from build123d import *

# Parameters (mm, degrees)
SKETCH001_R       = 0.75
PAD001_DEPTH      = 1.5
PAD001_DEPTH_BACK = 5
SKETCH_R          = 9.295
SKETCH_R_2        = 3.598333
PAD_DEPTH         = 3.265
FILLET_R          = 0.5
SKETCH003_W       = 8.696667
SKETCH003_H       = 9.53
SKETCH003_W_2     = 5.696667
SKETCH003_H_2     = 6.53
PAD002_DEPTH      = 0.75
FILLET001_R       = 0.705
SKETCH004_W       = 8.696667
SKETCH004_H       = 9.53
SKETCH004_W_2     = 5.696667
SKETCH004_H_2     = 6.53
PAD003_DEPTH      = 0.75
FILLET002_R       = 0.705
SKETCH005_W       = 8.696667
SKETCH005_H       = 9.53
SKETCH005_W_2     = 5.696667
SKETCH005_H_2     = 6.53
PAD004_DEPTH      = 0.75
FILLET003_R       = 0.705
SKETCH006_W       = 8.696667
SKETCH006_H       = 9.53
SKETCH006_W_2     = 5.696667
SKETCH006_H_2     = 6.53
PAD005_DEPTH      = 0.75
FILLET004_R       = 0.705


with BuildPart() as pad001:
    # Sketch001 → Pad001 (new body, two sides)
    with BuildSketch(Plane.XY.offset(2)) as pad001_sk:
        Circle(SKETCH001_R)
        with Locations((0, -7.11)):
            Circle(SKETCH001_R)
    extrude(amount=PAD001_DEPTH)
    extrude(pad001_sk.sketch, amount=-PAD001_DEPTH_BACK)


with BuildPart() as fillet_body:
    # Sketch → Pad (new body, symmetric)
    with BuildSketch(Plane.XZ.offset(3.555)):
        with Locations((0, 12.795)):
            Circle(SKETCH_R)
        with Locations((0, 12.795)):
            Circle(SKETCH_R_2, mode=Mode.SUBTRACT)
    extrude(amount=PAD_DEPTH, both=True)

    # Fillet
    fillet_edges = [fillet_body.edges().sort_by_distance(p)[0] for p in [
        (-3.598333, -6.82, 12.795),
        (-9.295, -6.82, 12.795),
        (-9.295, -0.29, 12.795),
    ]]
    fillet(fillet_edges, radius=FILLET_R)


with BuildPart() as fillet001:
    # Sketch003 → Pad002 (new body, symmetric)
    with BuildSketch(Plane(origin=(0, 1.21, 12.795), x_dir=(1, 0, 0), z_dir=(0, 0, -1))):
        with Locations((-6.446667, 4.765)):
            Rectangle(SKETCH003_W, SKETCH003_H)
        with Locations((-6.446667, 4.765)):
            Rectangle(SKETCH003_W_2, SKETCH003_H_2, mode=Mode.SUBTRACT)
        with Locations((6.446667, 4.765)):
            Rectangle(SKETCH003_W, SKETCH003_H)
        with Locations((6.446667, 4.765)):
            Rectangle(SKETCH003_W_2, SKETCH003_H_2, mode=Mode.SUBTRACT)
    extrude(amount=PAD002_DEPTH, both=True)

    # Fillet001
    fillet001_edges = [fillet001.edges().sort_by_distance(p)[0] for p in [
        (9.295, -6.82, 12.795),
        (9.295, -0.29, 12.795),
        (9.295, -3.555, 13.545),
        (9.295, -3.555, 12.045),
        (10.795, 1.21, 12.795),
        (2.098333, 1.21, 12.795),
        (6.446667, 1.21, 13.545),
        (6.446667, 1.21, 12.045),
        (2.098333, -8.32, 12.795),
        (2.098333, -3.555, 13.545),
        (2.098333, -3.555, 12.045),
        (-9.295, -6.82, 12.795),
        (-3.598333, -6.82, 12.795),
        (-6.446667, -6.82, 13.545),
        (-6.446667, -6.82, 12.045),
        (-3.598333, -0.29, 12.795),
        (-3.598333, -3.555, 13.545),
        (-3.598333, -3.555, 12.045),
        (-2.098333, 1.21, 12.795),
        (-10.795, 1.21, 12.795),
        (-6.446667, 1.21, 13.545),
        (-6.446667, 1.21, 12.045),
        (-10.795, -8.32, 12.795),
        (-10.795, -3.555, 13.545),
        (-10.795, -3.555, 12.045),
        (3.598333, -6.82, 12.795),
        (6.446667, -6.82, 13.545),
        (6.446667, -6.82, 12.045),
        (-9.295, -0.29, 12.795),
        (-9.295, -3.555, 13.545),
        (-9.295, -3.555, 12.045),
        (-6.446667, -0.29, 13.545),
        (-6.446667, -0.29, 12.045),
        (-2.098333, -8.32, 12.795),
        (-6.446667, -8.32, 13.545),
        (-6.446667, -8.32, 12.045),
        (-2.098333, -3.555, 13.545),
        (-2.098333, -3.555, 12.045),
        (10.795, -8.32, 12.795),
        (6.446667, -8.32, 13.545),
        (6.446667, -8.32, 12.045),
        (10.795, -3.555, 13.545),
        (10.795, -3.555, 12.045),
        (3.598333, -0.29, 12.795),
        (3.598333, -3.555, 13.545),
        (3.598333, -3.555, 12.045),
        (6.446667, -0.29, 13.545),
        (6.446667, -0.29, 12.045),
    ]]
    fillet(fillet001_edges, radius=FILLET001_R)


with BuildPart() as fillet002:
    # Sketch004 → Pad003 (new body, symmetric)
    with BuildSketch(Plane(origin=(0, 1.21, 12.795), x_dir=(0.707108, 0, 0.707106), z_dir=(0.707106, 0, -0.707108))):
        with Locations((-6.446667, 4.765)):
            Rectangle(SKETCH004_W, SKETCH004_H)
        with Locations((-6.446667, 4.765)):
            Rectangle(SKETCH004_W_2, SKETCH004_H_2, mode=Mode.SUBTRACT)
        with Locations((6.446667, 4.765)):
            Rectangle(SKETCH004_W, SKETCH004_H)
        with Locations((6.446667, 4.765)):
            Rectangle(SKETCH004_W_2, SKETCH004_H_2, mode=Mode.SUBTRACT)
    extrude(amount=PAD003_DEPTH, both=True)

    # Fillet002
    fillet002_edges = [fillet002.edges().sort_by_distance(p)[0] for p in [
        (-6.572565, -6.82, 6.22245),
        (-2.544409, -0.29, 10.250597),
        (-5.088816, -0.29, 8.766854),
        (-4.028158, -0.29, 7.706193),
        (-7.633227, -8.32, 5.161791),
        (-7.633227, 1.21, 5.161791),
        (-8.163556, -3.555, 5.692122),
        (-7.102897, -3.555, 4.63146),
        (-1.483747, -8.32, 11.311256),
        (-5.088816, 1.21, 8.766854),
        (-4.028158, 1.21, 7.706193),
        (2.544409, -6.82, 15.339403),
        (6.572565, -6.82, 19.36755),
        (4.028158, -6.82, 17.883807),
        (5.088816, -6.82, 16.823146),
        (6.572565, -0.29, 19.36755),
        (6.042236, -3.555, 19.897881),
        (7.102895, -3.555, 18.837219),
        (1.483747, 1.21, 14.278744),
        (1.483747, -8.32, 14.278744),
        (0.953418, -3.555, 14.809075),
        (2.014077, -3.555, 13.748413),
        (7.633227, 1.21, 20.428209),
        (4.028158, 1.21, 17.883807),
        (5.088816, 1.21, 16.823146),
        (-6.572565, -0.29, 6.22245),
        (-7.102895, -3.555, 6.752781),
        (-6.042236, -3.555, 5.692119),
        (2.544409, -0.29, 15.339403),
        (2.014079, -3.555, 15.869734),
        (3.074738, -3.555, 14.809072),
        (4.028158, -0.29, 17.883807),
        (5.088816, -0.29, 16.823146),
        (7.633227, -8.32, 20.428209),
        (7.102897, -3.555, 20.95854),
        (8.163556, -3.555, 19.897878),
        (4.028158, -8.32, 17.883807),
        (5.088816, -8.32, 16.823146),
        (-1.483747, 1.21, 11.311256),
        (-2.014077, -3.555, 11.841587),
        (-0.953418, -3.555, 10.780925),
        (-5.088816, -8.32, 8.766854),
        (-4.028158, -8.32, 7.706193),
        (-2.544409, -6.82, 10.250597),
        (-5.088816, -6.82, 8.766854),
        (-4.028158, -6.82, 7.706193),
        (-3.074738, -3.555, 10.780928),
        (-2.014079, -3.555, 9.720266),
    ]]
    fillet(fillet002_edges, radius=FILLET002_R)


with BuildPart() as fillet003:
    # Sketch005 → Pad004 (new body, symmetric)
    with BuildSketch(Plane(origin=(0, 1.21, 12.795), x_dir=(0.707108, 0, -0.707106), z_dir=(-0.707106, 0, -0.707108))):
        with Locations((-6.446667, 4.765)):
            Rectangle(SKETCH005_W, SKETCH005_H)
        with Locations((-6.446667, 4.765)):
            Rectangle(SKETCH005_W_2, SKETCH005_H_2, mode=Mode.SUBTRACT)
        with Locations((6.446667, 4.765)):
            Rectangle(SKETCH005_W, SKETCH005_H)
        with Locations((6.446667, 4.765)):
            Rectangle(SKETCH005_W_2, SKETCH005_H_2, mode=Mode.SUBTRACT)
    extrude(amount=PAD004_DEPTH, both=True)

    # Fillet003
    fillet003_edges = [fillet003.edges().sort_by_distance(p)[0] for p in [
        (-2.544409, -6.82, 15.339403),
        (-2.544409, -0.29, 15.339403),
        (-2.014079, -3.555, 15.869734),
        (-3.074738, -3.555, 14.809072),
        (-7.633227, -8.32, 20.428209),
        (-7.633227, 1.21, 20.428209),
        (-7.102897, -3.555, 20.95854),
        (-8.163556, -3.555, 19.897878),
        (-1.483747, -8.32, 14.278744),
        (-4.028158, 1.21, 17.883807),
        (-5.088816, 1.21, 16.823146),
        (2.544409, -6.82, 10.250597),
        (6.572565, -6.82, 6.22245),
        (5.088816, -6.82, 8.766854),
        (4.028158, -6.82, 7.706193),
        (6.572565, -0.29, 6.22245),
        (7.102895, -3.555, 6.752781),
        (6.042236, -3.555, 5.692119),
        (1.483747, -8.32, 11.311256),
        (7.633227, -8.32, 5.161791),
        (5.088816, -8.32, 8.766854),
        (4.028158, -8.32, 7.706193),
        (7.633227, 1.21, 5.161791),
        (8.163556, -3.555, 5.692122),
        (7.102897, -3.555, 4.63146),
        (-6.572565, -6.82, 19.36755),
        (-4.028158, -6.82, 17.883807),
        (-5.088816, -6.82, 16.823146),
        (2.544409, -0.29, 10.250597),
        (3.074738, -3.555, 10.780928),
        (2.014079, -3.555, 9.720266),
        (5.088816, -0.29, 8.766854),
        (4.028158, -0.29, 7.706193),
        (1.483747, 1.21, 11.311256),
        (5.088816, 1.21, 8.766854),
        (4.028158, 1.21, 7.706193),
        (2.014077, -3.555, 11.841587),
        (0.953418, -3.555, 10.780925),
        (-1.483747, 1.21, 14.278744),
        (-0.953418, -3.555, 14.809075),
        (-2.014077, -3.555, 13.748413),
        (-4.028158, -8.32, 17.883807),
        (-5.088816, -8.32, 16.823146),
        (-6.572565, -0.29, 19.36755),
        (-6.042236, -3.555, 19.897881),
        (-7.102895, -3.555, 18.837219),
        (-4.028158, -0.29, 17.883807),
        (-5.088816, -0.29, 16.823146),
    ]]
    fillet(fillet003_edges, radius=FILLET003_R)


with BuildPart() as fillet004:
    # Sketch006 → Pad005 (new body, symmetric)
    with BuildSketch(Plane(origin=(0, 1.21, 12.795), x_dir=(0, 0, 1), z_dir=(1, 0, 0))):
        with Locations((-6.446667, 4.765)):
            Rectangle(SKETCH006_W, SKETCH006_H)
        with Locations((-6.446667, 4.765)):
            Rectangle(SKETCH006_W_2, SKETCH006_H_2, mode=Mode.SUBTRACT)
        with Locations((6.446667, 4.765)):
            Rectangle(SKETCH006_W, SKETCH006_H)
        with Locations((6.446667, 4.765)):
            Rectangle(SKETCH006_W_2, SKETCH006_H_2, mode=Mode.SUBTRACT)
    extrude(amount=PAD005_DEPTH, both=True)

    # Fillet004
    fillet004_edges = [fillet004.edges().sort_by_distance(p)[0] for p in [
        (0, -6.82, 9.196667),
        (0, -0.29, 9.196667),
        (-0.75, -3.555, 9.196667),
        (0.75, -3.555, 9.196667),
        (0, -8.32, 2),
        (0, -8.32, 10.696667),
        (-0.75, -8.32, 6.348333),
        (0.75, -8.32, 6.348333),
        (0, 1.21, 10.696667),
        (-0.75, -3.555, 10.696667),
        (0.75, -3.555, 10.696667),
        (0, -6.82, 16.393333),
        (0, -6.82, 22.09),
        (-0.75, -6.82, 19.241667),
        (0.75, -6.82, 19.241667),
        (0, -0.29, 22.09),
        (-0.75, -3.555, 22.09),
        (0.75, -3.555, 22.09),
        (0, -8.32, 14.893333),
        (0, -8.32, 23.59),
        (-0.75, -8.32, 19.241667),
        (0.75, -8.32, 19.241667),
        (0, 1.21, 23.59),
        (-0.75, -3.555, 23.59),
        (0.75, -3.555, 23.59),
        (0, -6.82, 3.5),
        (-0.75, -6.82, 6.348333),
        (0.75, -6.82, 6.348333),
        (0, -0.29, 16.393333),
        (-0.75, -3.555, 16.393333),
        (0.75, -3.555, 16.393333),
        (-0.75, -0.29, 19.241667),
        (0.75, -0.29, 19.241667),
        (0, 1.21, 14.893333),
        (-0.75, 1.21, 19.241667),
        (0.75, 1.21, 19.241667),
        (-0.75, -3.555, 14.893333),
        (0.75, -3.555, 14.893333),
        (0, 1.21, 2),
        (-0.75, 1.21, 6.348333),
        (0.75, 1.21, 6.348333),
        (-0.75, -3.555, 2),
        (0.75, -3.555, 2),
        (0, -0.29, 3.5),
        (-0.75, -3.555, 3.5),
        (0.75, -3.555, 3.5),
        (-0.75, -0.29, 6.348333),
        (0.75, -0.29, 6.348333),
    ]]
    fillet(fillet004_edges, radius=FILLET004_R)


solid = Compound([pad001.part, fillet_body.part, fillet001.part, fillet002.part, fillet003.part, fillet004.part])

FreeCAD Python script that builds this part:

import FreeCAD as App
import Part
import Sketcher
Q = App.Units.Quantity


def edges_at(feature, points):
    """Names of the edges that pass closest to the given points."""
    edges = feature.Shape.Edges
    near = lambda p: min(range(len(edges)), key=lambda i: edges[i].distToShape(Part.Vertex(*p))[0])
    return sorted({f"Edge{near(p) + 1}" for p in points})


def add_polygon(sketch, points):
    """Adds a closed chain of lines whose ends are joined by coincident constraints."""
    first, n = sketch.GeometryCount, len(points)
    for a, b in zip(points, points[1:] + points[:1]):
        sketch.addGeometry(Part.LineSegment(App.Vector(*a, 0), App.Vector(*b, 0)), False)
    for i in range(n):
        sketch.addConstraint(Sketcher.Constraint("Coincident", first + i, 2, first + (i + 1) % n, 1))

doc = App.newDocument("Part")
body = doc.addObject("PartDesign::Body", "Body")
body.AllowCompound = True

sketch1 = body.newObject("Sketcher::SketchObject", "Sketch")
sketch1.AttachmentSupport = (doc.getObject("XY_Plane"), [""])
sketch1.MapMode = "FlatFace"
sketch1.AttachmentOffset = App.Placement(App.Vector(0, 0, 2), App.Rotation())
sketch1.addGeometry(Part.Circle(App.Vector(0, 0, 0), App.Vector(0, 0, 1), 0.8), False)
sketch1.addGeometry(Part.Circle(App.Vector(0, -7.1, 0), App.Vector(0, 0, 1), 0.8), False)
sketch1.addConstraint(Sketcher.Constraint("Coincident", 0, 3, -1, 1))
sketch1.addConstraint(Sketcher.Constraint("Equal", 0, 1))
sketch1.addConstraint(Sketcher.Constraint("PointOnObject", 1, 3, -2))
sketch1.addConstraint(Sketcher.Constraint("Diameter", 0, Q("1.5 mm")))
sketch1.addConstraint(Sketcher.Constraint("DistanceY", 1, 3, -1, 1, Q("7.11 mm")))
pad1 = body.newObject("PartDesign::Pad", "Pad")
pad1.Profile = sketch1
pad1.Type = "TwoLengths"
pad1.Length = 1.5
pad1.Length2 = 5
body2 = doc.addObject("PartDesign::Body", "Body001")

sketch2 = body2.newObject("Sketcher::SketchObject", "Sketch001")
sketch2.AttachmentSupport = (doc.getObject("XZ_Plane001"), [""])
sketch2.MapMode = "FlatFace"
sketch2.AttachmentOffset = App.Placement(App.Vector(0, 0, 3.555), App.Rotation())
sketch2.addGeometry(Part.Circle(App.Vector(0, 12.8, 0), App.Vector(0, 0, 1), 9.3), False)
sketch2.addGeometry(Part.Circle(App.Vector(0, 12.8, 0), App.Vector(0, 0, 1), 3.6), False)
sketch2.addConstraint(Sketcher.Constraint("Coincident", 1, 3, 0, 3))
sketch2.addConstraint(Sketcher.Constraint("PointOnObject", 0, 3, -2))
sketch2.addConstraint(Sketcher.Constraint("Diameter", 0, Q("18.59 mm")))
sketch2.addConstraint(Sketcher.Constraint("Diameter", 1, Q("7.196666 mm")))
sketch2.addConstraint(Sketcher.Constraint("DistanceY", -1, 1, 0, 3, Q("12.795 mm")))
pad2 = body2.newObject("PartDesign::Pad", "Pad001")
pad2.Profile = sketch2
pad2.Length = 6.53
pad2.Midplane = True
doc.recompute()

fillet = body2.newObject("PartDesign::Fillet", "Fillet")
fillet.Base = (pad2, edges_at(pad2, [(-3.598, -6.82, 12.795), (-9.295, -6.82, 12.795), (-9.295, -0.29, 12.795)]))
fillet.Radius = 0.5
body3 = doc.addObject("PartDesign::Body", "Body002")
body3.AllowCompound = True

sketch3 = body3.newObject("Sketcher::SketchObject", "Sketch002")
sketch3.AttachmentSupport = (doc.getObject("XY_Plane002"), [""])
sketch3.MapMode = "FlatFace"
sketch3.AttachmentOffset = App.Placement(App.Vector(0, 0, 12.795), App.Rotation())
add_polygon(sketch3, [(-11, -8), (-11, 1), (-2, 1), (-2, -8)])
add_polygon(sketch3, [(-4, 0), (-9, 0), (-9, -7), (-4, -7)])
add_polygon(sketch3, [(2, -8), (2, 1), (11, 1), (11, -8)])
add_polygon(sketch3, [(9, 0), (4, 0), (4, -7), (9, -7)])
sketch3.addConstraint(Sketcher.Constraint("Vertical", 0))
sketch3.addConstraint(Sketcher.Constraint("Horizontal", 1))
sketch3.addConstraint(Sketcher.Constraint("Vertical", 2))
sketch3.addConstraint(Sketcher.Constraint("Horizontal", 3))
sketch3.addConstraint(Sketcher.Constraint("Horizontal", 4))
sketch3.addConstraint(Sketcher.Constraint("Vertical", 5))
sketch3.addConstraint(Sketcher.Constraint("Horizontal", 6))
sketch3.addConstraint(Sketcher.Constraint("Vertical", 7))
sketch3.addConstraint(Sketcher.Constraint("Vertical", 8))
sketch3.addConstraint(Sketcher.Constraint("Horizontal", 9))
sketch3.addConstraint(Sketcher.Constraint("Vertical", 10))
sketch3.addConstraint(Sketcher.Constraint("Horizontal", 11))
sketch3.addConstraint(Sketcher.Constraint("Horizontal", 12))
sketch3.addConstraint(Sketcher.Constraint("Vertical", 13))
sketch3.addConstraint(Sketcher.Constraint("Horizontal", 14))
sketch3.addConstraint(Sketcher.Constraint("Vertical", 15))
sketch3.addConstraint(Sketcher.Constraint("Symmetric", 1, 2, 8, 2, -2))
sketch3.addConstraint(Sketcher.Constraint("Symmetric", 3, 2, 10, 2, -2))
sketch3.addConstraint(Sketcher.Constraint("Symmetric", 7, 2, 12, 2, -2))
sketch3.addConstraint(Sketcher.Constraint("Symmetric", 5, 2, 14, 2, -2))
sketch3.addConstraint(Sketcher.Constraint("DistanceY", 0, 1, 0, 2, Q("9.53 mm")))
sketch3.addConstraint(Sketcher.Constraint("DistanceY", 5, 2, 5, 1, Q("6.53 mm")))
sketch3.addConstraint(Sketcher.Constraint("DistanceX", 0, 2, 4, 2, Q("1.5 mm")))
sketch3.addConstraint(Sketcher.Constraint("DistanceY", 4, 2, 0, 2, Q("1.5 mm")))
sketch3.addConstraint(Sketcher.Constraint("DistanceX", 6, 2, 2, 2, Q("1.5 mm")))
sketch3.addConstraint(Sketcher.Constraint("DistanceY", -1, 1, 0, 2, Q("1.21 mm")))
sketch3.addConstraint(Sketcher.Constraint("DistanceX", 0, 2, -1, 1, Q("10.795001 mm")))
sketch3.addConstraint(Sketcher.Constraint("DistanceX", 1, 1, 1, 2, Q("8.696667 mm")))
pad3 = body3.newObject("PartDesign::Pad", "Pad002")
pad3.Profile = sketch3
pad3.Length = 1.5
pad3.Midplane = True
doc.recompute()

fillet2 = body3.newObject("PartDesign::Fillet", "Fillet001")
fillet2.Base = (pad3, ["Edge1"])
fillet2.UseAllEdges = True
fillet2.Radius = 0.705
body4 = doc.addObject("PartDesign::Body", "Body003")
body4.AllowCompound = True

sketch4 = body4.newObject("Sketcher::SketchObject", "Sketch003")
sketch4.Placement = App.Placement(App.Vector(0, 1.21, 12.795), App.Rotation(App.Vector(0.707107781, 0, 0.707105781), App.Vector(0, -0.999999999, 0), App.Vector(0.707105781, 0, -0.707107781), "ZXY"))
add_polygon(sketch4, [(-11, 10), (-11, 0), (-2, 0), (-2, 10)])
add_polygon(sketch4, [(-4, 1), (-9, 1), (-9, 8), (-4, 8)])
add_polygon(sketch4, [(2, 10), (2, 0), (11, 0), (11, 10)])
add_polygon(sketch4, [(9, 1), (4, 1), (4, 8), (9, 8)])
sketch4.addConstraint(Sketcher.Constraint("Vertical", 0))
sketch4.addConstraint(Sketcher.Constraint("Horizontal", 1))
sketch4.addConstraint(Sketcher.Constraint("Vertical", 2))
sketch4.addConstraint(Sketcher.Constraint("Horizontal", 3))
sketch4.addConstraint(Sketcher.Constraint("Horizontal", 4))
sketch4.addConstraint(Sketcher.Constraint("Vertical", 5))
sketch4.addConstraint(Sketcher.Constraint("Horizontal", 6))
sketch4.addConstraint(Sketcher.Constraint("Vertical", 7))
sketch4.addConstraint(Sketcher.Constraint("Vertical", 8))
sketch4.addConstraint(Sketcher.Constraint("Horizontal", 9))
sketch4.addConstraint(Sketcher.Constraint("Vertical", 10))
sketch4.addConstraint(Sketcher.Constraint("Horizontal", 11))
sketch4.addConstraint(Sketcher.Constraint("Horizontal", 12))
sketch4.addConstraint(Sketcher.Constraint("Vertical", 13))
sketch4.addConstraint(Sketcher.Constraint("Horizontal", 14))
sketch4.addConstraint(Sketcher.Constraint("Vertical", 15))
sketch4.addConstraint(Sketcher.Constraint("Symmetric", 1, 2, 8, 2, -1, 1))
sketch4.addConstraint(Sketcher.Constraint("Symmetric", 0, 2, 9, 2, -2))
sketch4.addConstraint(Sketcher.Constraint("Symmetric", 7, 2, 12, 2, -2))
sketch4.addConstraint(Sketcher.Constraint("Symmetric", 5, 2, 14, 2, -2))
sketch4.addConstraint(Sketcher.Constraint("Horizontal", 3, 2, 10, 2))
sketch4.addConstraint(Sketcher.Constraint("DistanceY", 0, 2, 0, 1, Q("9.53 mm")))
sketch4.addConstraint(Sketcher.Constraint("DistanceY", 5, 1, 5, 2, Q("6.53 mm")))
sketch4.addConstraint(Sketcher.Constraint("DistanceY", -1, 1, 4, 2, Q("1.5 mm")))
sketch4.addConstraint(Sketcher.Constraint("DistanceX", 0, 2, 4, 2, Q("1.5 mm")))
sketch4.addConstraint(Sketcher.Constraint("DistanceX", 6, 2, 2, 2, Q("1.5 mm")))
sketch4.addConstraint(Sketcher.Constraint("DistanceX", 0, 2, -1, 1, Q("10.795 mm")))
sketch4.addConstraint(Sketcher.Constraint("DistanceX", 1, 1, 1, 2, Q("8.696667 mm")))
pad4 = body4.newObject("PartDesign::Pad", "Pad003")
pad4.Profile = sketch4
pad4.Length = 1.5
pad4.Midplane = True
doc.recompute()

fillet3 = body4.newObject("PartDesign::Fillet", "Fillet002")
fillet3.Base = (pad4, ["Edge1"])
fillet3.UseAllEdges = True
fillet3.Radius = 0.705
body5 = doc.addObject("PartDesign::Body", "Body004")
body5.AllowCompound = True

sketch5 = body5.newObject("Sketcher::SketchObject", "Sketch004")
sketch5.Placement = App.Placement(App.Vector(0, 1.21, 12.795), App.Rotation(App.Vector(0.707107781, 0, -0.707105781), App.Vector(0, -0.999999999, 0), App.Vector(-0.707105781, 0, -0.707107781), "ZXY"))
add_polygon(sketch5, [(-11, 10), (-11, 0), (-2, 0), (-2, 10)])
add_polygon(sketch5, [(-4, 1), (-9, 1), (-9, 8), (-4, 8)])
add_polygon(sketch5, [(2, 10), (2, 0), (11, 0), (11, 10)])
add_polygon(sketch5, [(9, 1), (4, 1), (4, 8), (9, 8)])
sketch5.addConstraint(Sketcher.Constraint("Vertical", 0))
sketch5.addConstraint(Sketcher.Constraint("Horizontal", 1))
sketch5.addConstraint(Sketcher.Constraint("Vertical", 2))
sketch5.addConstraint(Sketcher.Constraint("Horizontal", 3))
sketch5.addConstraint(Sketcher.Constraint("Horizontal", 4))
sketch5.addConstraint(Sketcher.Constraint("Vertical", 5))
sketch5.addConstraint(Sketcher.Constraint("Horizontal", 6))
sketch5.addConstraint(Sketcher.Constraint("Vertical", 7))
sketch5.addConstraint(Sketcher.Constraint("Vertical", 8))
sketch5.addConstraint(Sketcher.Constraint("Horizontal", 9))
sketch5.addConstraint(Sketcher.Constraint("Vertical", 10))
sketch5.addConstraint(Sketcher.Constraint("Horizontal", 11))
sketch5.addConstraint(Sketcher.Constraint("Horizontal", 12))
sketch5.addConstraint(Sketcher.Constraint("Vertical", 13))
sketch5.addConstraint(Sketcher.Constraint("Horizontal", 14))
sketch5.addConstraint(Sketcher.Constraint("Vertical", 15))
sketch5.addConstraint(Sketcher.Constraint("Symmetric", 1, 2, 8, 2, -1, 1))
sketch5.addConstraint(Sketcher.Constraint("Symmetric", 0, 2, 9, 2, -2))
sketch5.addConstraint(Sketcher.Constraint("Symmetric", 7, 2, 12, 2, -2))
sketch5.addConstraint(Sketcher.Constraint("Symmetric", 5, 2, 14, 2, -2))
sketch5.addConstraint(Sketcher.Constraint("Horizontal", 3, 2, 10, 2))
sketch5.addConstraint(Sketcher.Constraint("DistanceY", 0, 2, 0, 1, Q("9.53 mm")))
sketch5.addConstraint(Sketcher.Constraint("DistanceY", 5, 1, 5, 2, Q("6.53 mm")))
sketch5.addConstraint(Sketcher.Constraint("DistanceY", -1, 1, 4, 2, Q("1.5 mm")))
sketch5.addConstraint(Sketcher.Constraint("DistanceX", 0, 2, 4, 2, Q("1.5 mm")))
sketch5.addConstraint(Sketcher.Constraint("DistanceX", 6, 2, 2, 2, Q("1.5 mm")))
sketch5.addConstraint(Sketcher.Constraint("DistanceX", 0, 2, -1, 1, Q("10.795 mm")))
sketch5.addConstraint(Sketcher.Constraint("DistanceX", 1, 1, 1, 2, Q("8.696667 mm")))
pad5 = body5.newObject("PartDesign::Pad", "Pad004")
pad5.Profile = sketch5
pad5.Length = 1.5
pad5.Midplane = True
doc.recompute()

fillet4 = body5.newObject("PartDesign::Fillet", "Fillet003")
fillet4.Base = (pad5, ["Edge1"])
fillet4.UseAllEdges = True
fillet4.Radius = 0.705
body6 = doc.addObject("PartDesign::Body", "Body005")
body6.AllowCompound = True

sketch6 = body6.newObject("Sketcher::SketchObject", "Sketch005")
sketch6.AttachmentSupport = (doc.getObject("YZ_Plane005"), [""])
sketch6.MapMode = "FlatFace"
add_polygon(sketch6, [(-8, 2), (1, 2), (1, 11), (-8, 11)])
add_polygon(sketch6, [(0, 9), (0, 3), (-7, 3), (-7, 9)])
add_polygon(sketch6, [(-8, 15), (1, 15), (1, 24), (-8, 24)])
add_polygon(sketch6, [(0, 22), (0, 16), (-7, 16), (-7, 22)])
sketch6.addConstraint(Sketcher.Constraint("Horizontal", 0))
sketch6.addConstraint(Sketcher.Constraint("Vertical", 1))
sketch6.addConstraint(Sketcher.Constraint("Horizontal", 2))
sketch6.addConstraint(Sketcher.Constraint("Vertical", 3))
sketch6.addConstraint(Sketcher.Constraint("Vertical", 4))
sketch6.addConstraint(Sketcher.Constraint("Horizontal", 5))
sketch6.addConstraint(Sketcher.Constraint("Vertical", 6))
sketch6.addConstraint(Sketcher.Constraint("Horizontal", 7))
sketch6.addConstraint(Sketcher.Constraint("Horizontal", 8))
sketch6.addConstraint(Sketcher.Constraint("Vertical", 9))
sketch6.addConstraint(Sketcher.Constraint("Horizontal", 10))
sketch6.addConstraint(Sketcher.Constraint("Vertical", 11))
sketch6.addConstraint(Sketcher.Constraint("Vertical", 12))
sketch6.addConstraint(Sketcher.Constraint("Horizontal", 13))
sketch6.addConstraint(Sketcher.Constraint("Vertical", 14))
sketch6.addConstraint(Sketcher.Constraint("Horizontal", 15))
sketch6.addConstraint(Sketcher.Constraint("Vertical", 1, 2, 8, 2))
sketch6.addConstraint(Sketcher.Constraint("Vertical", 3, 2, 10, 2))
sketch6.addConstraint(Sketcher.Constraint("Vertical", 7, 2, 12, 2))
sketch6.addConstraint(Sketcher.Constraint("Vertical", 6, 2, 13, 2))
sketch6.addConstraint(Sketcher.Constraint("Equal", 3, 9))
sketch6.addConstraint(Sketcher.Constraint("Equal", 6, 12))
sketch6.addConstraint(Sketcher.Constraint("DistanceY", -1, 1, 0, 2, Q("1.999999 mm")))
sketch6.addConstraint(Sketcher.Constraint("DistanceX", 0, 1, 0, 2, Q("9.53 mm")))
sketch6.addConstraint(Sketcher.Constraint("DistanceX", 5, 2, 5, 1, Q("6.53 mm")))
sketch6.addConstraint(Sketcher.Constraint("DistanceY", -1, 1, 4, 2, Q("3.499999 mm")))
sketch6.addConstraint(Sketcher.Constraint("DistanceX", 4, 2, 0, 2, Q("1.5 mm")))
sketch6.addConstraint(Sketcher.Constraint("DistanceY", 6, 2, 2, 2, Q("1.5 mm")))
sketch6.addConstraint(Sketcher.Constraint("DistanceY", 8, 2, 12, 2, Q("1.5 mm")))
sketch6.addConstraint(Sketcher.Constraint("DistanceX", -1, 1, 0, 2, Q("1.21 mm")))
sketch6.addConstraint(Sketcher.Constraint("DistanceY", -1, 1, 9, 2, Q("23.59 mm")))
sketch6.addConstraint(Sketcher.Constraint("DistanceY", 1, 1, 1, 2, Q("8.696667 mm")))
pad6 = body6.newObject("PartDesign::Pad", "Pad005")
pad6.Profile = sketch6
pad6.Length = 1.5
pad6.Midplane = True
doc.recompute()

fillet5 = body6.newObject("PartDesign::Fillet", "Fillet004")
fillet5.Base = (pad6, ["Edge1"])
fillet5.UseAllEdges = True
fillet5.Radius = 0.705

doc.recompute()
